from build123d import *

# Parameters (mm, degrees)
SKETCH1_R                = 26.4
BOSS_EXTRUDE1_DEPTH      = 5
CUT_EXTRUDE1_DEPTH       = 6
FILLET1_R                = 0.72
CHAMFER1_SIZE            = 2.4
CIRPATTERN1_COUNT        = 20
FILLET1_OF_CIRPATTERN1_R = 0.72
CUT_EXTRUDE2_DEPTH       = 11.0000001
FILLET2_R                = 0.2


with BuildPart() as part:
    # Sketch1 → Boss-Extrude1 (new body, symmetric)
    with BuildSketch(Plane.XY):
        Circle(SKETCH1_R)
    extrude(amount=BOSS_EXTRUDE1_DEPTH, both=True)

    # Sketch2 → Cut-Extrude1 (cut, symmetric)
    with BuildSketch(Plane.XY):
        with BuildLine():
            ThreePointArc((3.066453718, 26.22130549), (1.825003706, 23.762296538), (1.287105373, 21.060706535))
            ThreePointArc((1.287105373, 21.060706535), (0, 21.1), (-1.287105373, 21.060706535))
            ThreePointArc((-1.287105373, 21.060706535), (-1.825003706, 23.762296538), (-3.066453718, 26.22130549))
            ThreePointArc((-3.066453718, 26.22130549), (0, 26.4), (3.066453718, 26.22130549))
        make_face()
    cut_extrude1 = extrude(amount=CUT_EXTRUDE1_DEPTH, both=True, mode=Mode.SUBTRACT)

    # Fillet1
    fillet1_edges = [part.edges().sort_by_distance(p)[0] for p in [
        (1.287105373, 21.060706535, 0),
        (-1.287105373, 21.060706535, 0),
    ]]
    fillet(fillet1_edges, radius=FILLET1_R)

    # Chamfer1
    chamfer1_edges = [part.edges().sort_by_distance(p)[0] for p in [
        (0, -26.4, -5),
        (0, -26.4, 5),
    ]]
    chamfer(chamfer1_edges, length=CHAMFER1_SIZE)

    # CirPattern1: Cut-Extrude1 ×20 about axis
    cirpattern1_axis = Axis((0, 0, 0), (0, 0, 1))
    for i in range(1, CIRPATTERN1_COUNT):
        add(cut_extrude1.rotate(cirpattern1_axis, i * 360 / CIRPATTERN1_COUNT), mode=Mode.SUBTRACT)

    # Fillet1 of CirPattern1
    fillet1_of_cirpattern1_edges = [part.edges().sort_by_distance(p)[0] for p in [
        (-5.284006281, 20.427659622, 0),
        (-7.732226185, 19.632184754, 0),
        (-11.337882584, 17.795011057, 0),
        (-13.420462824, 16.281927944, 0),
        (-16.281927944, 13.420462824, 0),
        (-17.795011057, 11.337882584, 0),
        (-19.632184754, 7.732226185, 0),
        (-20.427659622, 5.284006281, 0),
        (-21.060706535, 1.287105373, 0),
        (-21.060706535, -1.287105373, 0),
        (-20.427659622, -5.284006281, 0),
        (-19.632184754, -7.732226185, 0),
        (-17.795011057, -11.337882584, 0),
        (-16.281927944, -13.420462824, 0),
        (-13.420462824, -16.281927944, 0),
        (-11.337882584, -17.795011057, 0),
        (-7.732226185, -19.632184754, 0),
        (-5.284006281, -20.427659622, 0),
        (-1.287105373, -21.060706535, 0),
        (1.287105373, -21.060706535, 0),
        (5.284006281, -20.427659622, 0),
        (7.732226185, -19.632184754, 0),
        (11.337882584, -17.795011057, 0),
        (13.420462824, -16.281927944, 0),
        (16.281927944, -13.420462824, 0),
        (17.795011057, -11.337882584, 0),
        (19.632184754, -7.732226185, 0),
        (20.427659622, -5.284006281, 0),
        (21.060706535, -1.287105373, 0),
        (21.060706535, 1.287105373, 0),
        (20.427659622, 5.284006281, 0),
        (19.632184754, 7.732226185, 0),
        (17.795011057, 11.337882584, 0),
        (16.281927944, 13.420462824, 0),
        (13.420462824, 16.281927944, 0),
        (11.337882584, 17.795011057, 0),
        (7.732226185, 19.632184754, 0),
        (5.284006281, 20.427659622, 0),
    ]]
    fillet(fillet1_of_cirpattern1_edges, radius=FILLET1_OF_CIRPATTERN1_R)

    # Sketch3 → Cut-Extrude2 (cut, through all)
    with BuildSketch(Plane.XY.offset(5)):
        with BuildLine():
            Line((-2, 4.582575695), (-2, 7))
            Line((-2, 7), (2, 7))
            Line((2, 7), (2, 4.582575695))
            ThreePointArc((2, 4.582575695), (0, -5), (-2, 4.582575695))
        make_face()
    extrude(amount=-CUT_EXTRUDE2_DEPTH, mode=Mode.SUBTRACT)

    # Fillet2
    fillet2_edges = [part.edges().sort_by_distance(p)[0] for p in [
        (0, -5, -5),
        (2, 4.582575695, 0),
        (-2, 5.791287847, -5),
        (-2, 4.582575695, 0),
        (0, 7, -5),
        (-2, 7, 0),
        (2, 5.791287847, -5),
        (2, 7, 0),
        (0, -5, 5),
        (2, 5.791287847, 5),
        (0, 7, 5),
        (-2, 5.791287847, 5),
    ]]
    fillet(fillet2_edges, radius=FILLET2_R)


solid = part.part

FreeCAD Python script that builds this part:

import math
import FreeCAD as App
import Part
import Sketcher

V = App.Vector


def edges_at(feature, points):
    """Names of the edges that pass closest to the given points."""
    edges = feature.Shape.Edges
    near = lambda p: min(range(len(edges)), key=lambda i: edges[i].distToShape(Part.Vertex(*p))[0])
    return sorted({f"Edge{near(p) + 1}" for p in points})

doc = App.newDocument("Part")
body = doc.addObject("PartDesign::Body", "Body")

sketch1 = body.newObject("Sketcher::SketchObject", "Sketch")
sketch1.AttachmentSupport = (doc.getObject("XY_Plane"), [""])
sketch1.MapMode = "FlatFace"
sketch1.addGeometry(Part.Circle(V(0, 0, 0), V(0, 0, 1), 26), False)
sketch1.addConstraint([
    Sketcher.Constraint("Coincident", 0, 3, -1, 1),
    Sketcher.Constraint("Diameter", 0, 52.8),
])
pad1 = body.newObject("PartDesign::Pad", "Pad")
pad1.Profile = sketch1
pad1.Length = 10
pad1.Midplane = True

sketch2 = body.newObject("Sketcher::SketchObject", "Sketch001")
sketch2.AttachmentSupport = (doc.getObject("XY_Plane"), [""])
sketch2.MapMode = "FlatFace"
sketch2.addGeometry([
    Part.ArcOfCircle(Part.Circle(V(11.5, 20.4, 0), V(0, 0, 1), 10.2), math.radians(145), math.radians(177)),
    Part.ArcOfCircle(Part.Circle(V(0, 0, 0), V(0, 0, 1), 26.4), math.radians(83.33), math.radians(96.67)),
    Part.ArcOfCircle(Part.Circle(V(-11.5, 20.4, 0), V(0, 0, 1), 10.2), math.radians(3), math.radians(35)),
    Part.ArcOfCircle(Part.Circle(V(0, 0, 0), V(0, 0, 1), 21.1), math.radians(86.5), math.radians(93.5)),
], False)
sketch2.addConstraint([
    Sketcher.Constraint("Coincident", 0, 1, 1, 1),
    Sketcher.Constraint("Coincident", 1, 2, 2, 2),
    Sketcher.Constraint("Coincident", 2, 1, 3, 2),
    Sketcher.Constraint("Coincident", 3, 1, 0, 2),
    Sketcher.Constraint("Coincident", 1, 3, -1, 1),
    Sketcher.Constraint("Coincident", 3, 3, -1, 1),
    Sketcher.Constraint("Equal", 0, 2),
    Sketcher.Constraint("Symmetric", 0, 3, 2, 3, -2),
    Sketcher.Constraint("Radius", 1, 26.4),
    Sketcher.Constraint("Radius", 3, 21.1),
    Sketcher.Constraint("Radius", 0, 10.196109),
    Sketcher.Constraint("DistanceY", 2, 1, 1, 2, 5.160599),
    Sketcher.Constraint("DistanceY", -1, 1, 0, 3, 20.438741),
])
pocket1 = body.newObject("PartDesign::Pocket", "Pocket")
pocket1.Profile = sketch2
pocket1.Length = 12
pocket1.Midplane = True
doc.recompute()

fillet = body.newObject("PartDesign::Fillet", "Fillet")
fillet.Base = (pocket1, edges_at(pocket1, [(1.287, 21.061, 0), (-1.287, 21.061, 0)]))
fillet.Radius = 0.72
doc.recompute()

chamfer = body.newObject("PartDesign::Chamfer", "Chamfer")
chamfer.Base = (fillet, edges_at(fillet, [(0, -26.4, -5), (0, -26.4, 5)]))
chamfer.Size = 2.4
doc.recompute()

polarpattern = body.newObject("PartDesign::PolarPattern", "PolarPattern")
polarpattern.Originals = [pocket1]
polarpattern.Axis = (doc.getObject("Z_Axis"), [""])
polarpattern.Angle = 360
polarpattern.Occurrences = 20
body.Tip = polarpattern
doc.recompute()

fillet2 = body.newObject("PartDesign::Fillet", "Fillet001")
fillet2.Base = (polarpattern, edges_at(polarpattern, [
    (-5.284, 20.428, 0),
    (-7.732, 19.632, 0),
    (-11.338, 17.795, 0),
    (-13.42, 16.282, 0),
    (-16.282, 13.42, 0),
    (-17.795, 11.338, 0),
    (-19.632, 7.732, 0),
    (-20.428, 5.284, 0),
    (-21.061, 1.287, 0),
    (-21.061, -1.287, 0),
    (-20.428, -5.284, 0),
    (-19.632, -7.732, 0),
    (-17.795, -11.338, 0),
    (-16.282, -13.42, 0),
    (-13.42, -16.282, 0),
    (-11.338, -17.795, 0),
    (-7.732, -19.632, 0),
    (-5.284, -20.428, 0),
    (-1.287, -21.061, 0),
    (1.287, -21.061, 0),
    (5.284, -20.428, 0),
    (7.732, -19.632, 0),
    (11.338, -17.795, 0),
    (13.42, -16.282, 0),
    (16.282, -13.42, 0),
    (17.795, -11.338, 0),
    (19.632, -7.732, 0),
    (20.428, -5.284, 0),
    (21.061, -1.287, 0),
    (21.061, 1.287, 0),
    (20.428, 5.284, 0),
    (19.632, 7.732, 0),
    (17.795, 11.338, 0),
    (16.282, 13.42, 0),
    (13.42, 16.282, 0),
    (11.338, 17.795, 0),
    (7.732, 19.632, 0),
    (5.284, 20.428, 0),
]))
fillet2.Radius = 0.72

sketch3 = body.newObject("Sketcher::SketchObject", "Sketch002")
sketch3.AttachmentSupport = (doc.getObject("XY_Plane"), [""])
sketch3.MapMode = "FlatFace"
sketch3.AttachmentOffset = App.Placement(V(0, 0, 5), App.Rotation())
sketch3.addGeometry([
    Part.LineSegment(V(-2, 7, 0), V(-2, 4.6, 0)),
    Part.ArcOfCircle(Part.Circle(V(0, 0, 0), V(0, 0, 1), 5), math.radians(114), math.radians(426)),
    Part.LineSegment(V(2, 4.6, 0), V(2, 7, 0)),
    Part.LineSegment(V(2, 7, 0), V(-2, 7, 0)),
], False)
sketch3.addConstraint([
    Sketcher.Constraint("Coincident", 0, 2, 1, 1),
    Sketcher.Constraint("Coincident", 1, 2, 2, 1),
    Sketcher.Constraint("Coincident", 2, 2, 3, 1),
    Sketcher.Constraint("Coincident", 3, 2, 0, 1),
    Sketcher.Constraint("Vertical", 0),
    Sketcher.Constraint("Vertical", 2),
    Sketcher.Constraint("Horizontal", 3),
    Sketcher.Constraint("Coincident", 1, 3, -1, 1),
    Sketcher.Constraint("Horizontal", 0, 2, 1, 2),
    Sketcher.Constraint("Radius", 1, 5.0),
    Sketcher.Constraint("DistanceX", 3, 2, 3, 1, 4.0),
    Sketcher.Constraint("DistanceY", -1, 1, 2, 2, 7.0),
])
pocket2 = body.newObject("PartDesign::Pocket", "Pocket001")
pocket2.Profile = sketch3
pocket2.Type = "ThroughAll"
doc.recompute()

fillet3 = body.newObject("PartDesign::Fillet", "Fillet002")
fillet3.Base = (pocket2, edges_at(pocket2, [
    (0, -5, -5),
    (2, 4.583, 0),
    (-2, 5.791, -5),
    (-2, 4.583, 0),
    (0, 7, -5),
    (-2, 7, 0),
    (2, 5.791, -5),
    (2, 7, 0),
    (0, -5, 5),
    (2, 5.791, 5),
    (0, 7, 5),
    (-2, 5.791, 5),
]))
fillet3.Radius = 0.2

doc.recompute()
